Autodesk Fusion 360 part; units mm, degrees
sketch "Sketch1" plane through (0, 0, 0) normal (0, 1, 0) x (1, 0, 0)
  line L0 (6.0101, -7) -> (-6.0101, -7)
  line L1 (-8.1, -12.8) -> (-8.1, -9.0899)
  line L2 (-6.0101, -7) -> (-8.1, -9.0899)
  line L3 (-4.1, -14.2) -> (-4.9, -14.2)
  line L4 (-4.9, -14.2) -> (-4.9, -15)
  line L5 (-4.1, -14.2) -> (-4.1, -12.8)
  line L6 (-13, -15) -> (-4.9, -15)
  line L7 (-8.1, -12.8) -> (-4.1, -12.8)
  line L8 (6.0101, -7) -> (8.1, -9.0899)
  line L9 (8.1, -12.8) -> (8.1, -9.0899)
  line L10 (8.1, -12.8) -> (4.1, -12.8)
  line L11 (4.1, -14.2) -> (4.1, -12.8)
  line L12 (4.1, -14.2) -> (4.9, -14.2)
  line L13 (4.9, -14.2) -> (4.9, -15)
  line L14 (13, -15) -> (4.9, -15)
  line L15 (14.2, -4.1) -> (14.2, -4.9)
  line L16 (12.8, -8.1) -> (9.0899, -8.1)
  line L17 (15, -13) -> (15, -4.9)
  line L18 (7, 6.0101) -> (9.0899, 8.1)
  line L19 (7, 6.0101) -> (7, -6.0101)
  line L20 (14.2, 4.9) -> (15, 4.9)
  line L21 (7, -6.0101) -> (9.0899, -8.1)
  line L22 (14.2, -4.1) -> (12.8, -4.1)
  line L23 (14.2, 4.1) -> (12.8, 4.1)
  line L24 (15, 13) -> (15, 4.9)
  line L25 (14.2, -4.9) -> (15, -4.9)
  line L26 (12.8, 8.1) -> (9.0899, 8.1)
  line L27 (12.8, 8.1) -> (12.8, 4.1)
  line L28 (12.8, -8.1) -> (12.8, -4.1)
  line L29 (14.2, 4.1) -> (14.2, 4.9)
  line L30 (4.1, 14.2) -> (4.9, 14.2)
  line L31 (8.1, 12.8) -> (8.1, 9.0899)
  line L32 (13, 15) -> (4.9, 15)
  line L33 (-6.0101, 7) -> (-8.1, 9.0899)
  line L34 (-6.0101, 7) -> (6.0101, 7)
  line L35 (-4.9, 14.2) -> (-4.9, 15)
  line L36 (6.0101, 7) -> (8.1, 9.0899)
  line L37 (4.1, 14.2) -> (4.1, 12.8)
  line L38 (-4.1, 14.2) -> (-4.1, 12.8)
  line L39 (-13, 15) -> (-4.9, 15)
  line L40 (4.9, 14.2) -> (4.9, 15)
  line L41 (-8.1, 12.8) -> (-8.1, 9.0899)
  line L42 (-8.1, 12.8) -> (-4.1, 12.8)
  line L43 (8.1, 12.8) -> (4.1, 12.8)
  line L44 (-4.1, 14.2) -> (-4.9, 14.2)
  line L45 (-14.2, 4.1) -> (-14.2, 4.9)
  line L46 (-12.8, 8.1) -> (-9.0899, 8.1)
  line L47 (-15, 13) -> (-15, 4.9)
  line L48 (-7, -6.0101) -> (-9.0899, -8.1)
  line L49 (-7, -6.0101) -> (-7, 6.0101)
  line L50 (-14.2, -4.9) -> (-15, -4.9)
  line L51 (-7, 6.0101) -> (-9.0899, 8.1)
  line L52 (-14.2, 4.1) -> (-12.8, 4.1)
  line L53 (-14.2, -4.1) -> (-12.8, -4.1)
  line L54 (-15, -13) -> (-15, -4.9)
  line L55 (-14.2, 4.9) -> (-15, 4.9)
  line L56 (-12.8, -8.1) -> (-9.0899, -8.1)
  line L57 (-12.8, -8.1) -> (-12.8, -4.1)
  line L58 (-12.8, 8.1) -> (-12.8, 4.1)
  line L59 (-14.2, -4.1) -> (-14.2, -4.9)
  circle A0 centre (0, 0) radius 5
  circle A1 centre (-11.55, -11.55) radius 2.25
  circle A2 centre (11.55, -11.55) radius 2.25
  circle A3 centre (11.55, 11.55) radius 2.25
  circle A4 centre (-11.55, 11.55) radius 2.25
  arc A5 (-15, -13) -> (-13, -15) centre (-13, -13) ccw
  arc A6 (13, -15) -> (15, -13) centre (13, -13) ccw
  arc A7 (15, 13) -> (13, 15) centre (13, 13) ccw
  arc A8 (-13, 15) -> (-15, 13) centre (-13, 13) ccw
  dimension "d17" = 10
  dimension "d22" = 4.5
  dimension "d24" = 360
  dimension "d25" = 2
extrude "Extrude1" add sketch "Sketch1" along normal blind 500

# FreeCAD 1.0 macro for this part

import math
import FreeCAD as App
import Part
import Sketcher
from FreeCAD import Vector

doc = App.newDocument("Part")
body = doc.addObject("PartDesign::Body", "Body")

sketch1 = doc.addObject("Sketcher::SketchObject", "Sketch")
body.addObject(sketch1)
sketch1.AttachmentSupport = (doc.XZ_Plane, [""])
sketch1.MapMode = "FlatFace"
sketch1.addGeometry([
    Part.LineSegment(Vector(-6, 7, 0), Vector(6, 7, 0)),
    Part.LineSegment(Vector(6, 7, 0), Vector(8.1, 9.1, 0)),
    Part.LineSegment(Vector(8.1, 9.1, 0), Vector(8.1, 12.8, 0)),
    Part.LineSegment(Vector(8.1, 12.8, 0), Vector(4.1, 12.8, 0)),
    Part.LineSegment(Vector(4.1, 12.8, 0), Vector(4.1, 14.2, 0)),
    Part.LineSegment(Vector(4.1, 14.2, 0), Vector(4.9, 14.2, 0)),
    Part.LineSegment(Vector(4.9, 14.2, 0), Vector(4.9, 15, 0)),
    Part.LineSegment(Vector(4.9, 15, 0), Vector(13, 15, 0)),
    Part.ArcOfCircle(Part.Circle(Vector(13, 13, 0), Vector(0, 0, 1), 2), math.radians(0), math.radians(90)),
    Part.LineSegment(Vector(15, 13, 0), Vector(15, 4.9, 0)),
    Part.LineSegment(Vector(15, 4.9, 0), Vector(14.2, 4.9, 0)),
    Part.LineSegment(Vector(14.2, 4.9, 0), Vector(14.2, 4.1, 0)),
    Part.LineSegment(Vector(14.2, 4.1, 0), Vector(12.8, 4.1, 0)),
    Part.LineSegment(Vector(12.8, 4.1, 0), Vector(12.8, 8.1, 0)),
    Part.LineSegment(Vector(12.8, 8.1, 0), Vector(9.1, 8.1, 0)),
    Part.LineSegment(Vector(9.1, 8.1, 0), Vector(7, 6, 0)),
    Part.LineSegment(Vector(7, 6, 0), Vector(7, -6, 0)),
    Part.LineSegment(Vector(7, -6, 0), Vector(9.1, -8.1, 0)),
    Part.LineSegment(Vector(9.1, -8.1, 0), Vector(12.8, -8.1, 0)),
    Part.LineSegment(Vector(12.8, -8.1, 0), Vector(12.8, -4.1, 0)),
    Part.LineSegment(Vector(12.8, -4.1, 0), Vector(14.2, -4.1, 0)),
    Part.LineSegment(Vector(14.2, -4.1, 0), Vector(14.2, -4.9, 0)),
    Part.LineSegment(Vector(14.2, -4.9, 0), Vector(15, -4.9, 0)),
    Part.LineSegment(Vector(15, -4.9, 0), Vector(15, -13, 0)),
    Part.ArcOfCircle(Part.Circle(Vector(13, -13, 0), Vector(0, 0, 1), 2), math.radians(-90), math.radians(0)),
    Part.LineSegment(Vector(13, -15, 0), Vector(4.9, -15, 0)),
    Part.LineSegment(Vector(4.9, -15, 0), Vector(4.9, -14.2, 0)),
    Part.LineSegment(Vector(4.9, -14.2, 0), Vector(4.1, -14.2, 0)),
    Part.LineSegment(Vector(4.1, -14.2, 0), Vector(4.1, -12.8, 0)),
    Part.LineSegment(Vector(4.1, -12.8, 0), Vector(8.1, -12.8, 0)),
    Part.LineSegment(Vector(8.1, -12.8, 0), Vector(8.1, -9.1, 0)),
    Part.LineSegment(Vector(8.1, -9.1, 0), Vector(6, -7, 0)),
    Part.LineSegment(Vector(6, -7, 0), Vector(-6, -7, 0)),
    Part.LineSegment(Vector(-6, -7, 0), Vector(-8.1, -9.1, 0)),
    Part.LineSegment(Vector(-8.1, -9.1, 0), Vector(-8.1, -12.8, 0)),
    Part.LineSegment(Vector(-8.1, -12.8, 0), Vector(-4.1, -12.8, 0)),
    Part.LineSegment(Vector(-4.1, -12.8, 0), Vector(-4.1, -14.2, 0)),
    Part.LineSegment(Vector(-4.1, -14.2, 0), Vector(-4.9, -14.2, 0)),
    Part.LineSegment(Vector(-4.9, -14.2, 0), Vector(-4.9, -15, 0)),
    Part.LineSegment(Vector(-4.9, -15, 0), Vector(-13, -15, 0)),
    Part.ArcOfCircle(Part.Circle(Vector(-13, -13, 0), Vector(0, 0, 1), 2), math.radians(180), math.radians(270)),
    Part.LineSegment(Vector(-15, -13, 0), Vector(-15, -4.9, 0)),
    Part.LineSegment(Vector(-15, -4.9, 0), Vector(-14.2, -4.9, 0)),
    Part.LineSegment(Vector(-14.2, -4.9, 0), Vector(-14.2, -4.1, 0)),
    Part.LineSegment(Vector(-14.2, -4.1, 0), Vector(-12.8, -4.1, 0)),
    Part.LineSegment(Vector(-12.8, -4.1, 0), Vector(-12.8, -8.1, 0)),
    Part.LineSegment(Vector(-12.8, -8.1, 0), Vector(-9.1, -8.1, 0)),
    Part.LineSegment(Vector(-9.1, -8.1, 0), Vector(-7, -6, 0)),
    Part.LineSegment(Vector(-7, -6, 0), Vector(-7, 6, 0)),
    Part.LineSegment(Vector(-7, 6, 0), Vector(-9.1, 8.1, 0)),
    Part.LineSegment(Vector(-9.1, 8.1, 0), Vector(-12.8, 8.1, 0)),
    Part.LineSegment(Vector(-12.8, 8.1, 0), Vector(-12.8, 4.1, 0)),
    Part.LineSegment(Vector(-12.8, 4.1, 0), Vector(-14.2, 4.1, 0)),
    Part.LineSegment(Vector(-14.2, 4.1, 0), Vector(-14.2, 4.9, 0)),
    Part.LineSegment(Vector(-14.2, 4.9, 0), Vector(-15, 4.9, 0)),
    Part.LineSegment(Vector(-15, 4.9, 0), Vector(-15, 13, 0)),
    Part.ArcOfCircle(Part.Circle(Vector(-13, 13, 0), Vector(0, 0, 1), 2), math.radians(90), math.radians(180)),
    Part.LineSegment(Vector(-13, 15, 0), Vector(-4.9, 15, 0)),
    Part.LineSegment(Vector(-4.9, 15, 0), Vector(-4.9, 14.2, 0)),
    Part.LineSegment(Vector(-4.9, 14.2, 0), Vector(-4.1, 14.2, 0)),
    Part.LineSegment(Vector(-4.1, 14.2, 0), Vector(-4.1, 12.8, 0)),
    Part.LineSegment(Vector(-4.1, 12.8, 0), Vector(-8.1, 12.8, 0)),
    Part.LineSegment(Vector(-8.1, 12.8, 0), Vector(-8.1, 9.1, 0)),
    Part.LineSegment(Vector(-8.1, 9.1, 0), Vector(-6, 7, 0)),
    Part.Circle(Vector(-11.6, 11.6, 0), Vector(0, 0, 1), 2.2),
    Part.Circle(Vector(11.6, 11.6, 0), Vector(0, 0, 1), 2.2),
    Part.Circle(Vector(-11.6, -11.6, 0), Vector(0, 0, 1), 2.2),
    Part.Circle(Vector(0, 0, 0), Vector(0, 0, 1), 5),
    Part.Circle(Vector(11.6, -11.6, 0), Vector(0, 0, 1), 2.2),
], False)
sketch1.addConstraint([
    Sketcher.Constraint("Coincident", 0, 2, 1, 1),
    Sketcher.Constraint("Coincident", 1, 2, 2, 1),
    Sketcher.Constraint("Coincident", 2, 2, 3, 1),
    Sketcher.Constraint("Coincident", 3, 2, 4, 1),
    Sketcher.Constraint("Coincident", 4, 2, 5, 1),
    Sketcher.Constraint("Coincident", 5, 2, 6, 1),
    Sketcher.Constraint("Coincident", 6, 2, 7, 1),
    Sketcher.Constraint("Tangent", 7, 2, 8, 2),
    Sketcher.Constraint("Tangent", 8, 1, 9, 1),
    Sketcher.Constraint("Coincident", 9, 2, 10, 1),
    Sketcher.Constraint("Coincident", 10, 2, 11, 1),
    Sketcher.Constraint("Coincident", 11, 2, 12, 1),
    Sketcher.Constraint("Coincident", 12, 2, 13, 1),
    Sketcher.Constraint("Coincident", 13, 2, 14, 1),
    Sketcher.Constraint("Coincident", 14, 2, 15, 1),
    Sketcher.Constraint("Coincident", 15, 2, 16, 1),
    Sketcher.Constraint("Coincident", 16, 2, 17, 1),
    Sketcher.Constraint("Coincident", 17, 2, 18, 1),
    Sketcher.Constraint("Coincident", 18, 2, 19, 1),
    Sketcher.Constraint("Coincident", 19, 2, 20, 1),
    Sketcher.Constraint("Coincident", 20, 2, 21, 1),
    Sketcher.Constraint("Coincident", 21, 2, 22, 1),
    Sketcher.Constraint("Coincident", 22, 2, 23, 1),
    Sketcher.Constraint("Tangent", 23, 2, 24, 2),
    Sketcher.Constraint("Tangent", 24, 1, 25, 1),
    Sketcher.Constraint("Coincident", 25, 2, 26, 1),
    Sketcher.Constraint("Coincident", 26, 2, 27, 1),
    Sketcher.Constraint("Coincident", 27, 2, 28, 1),
    Sketcher.Constraint("Coincident", 28, 2, 29, 1),
    Sketcher.Constraint("Coincident", 29, 2, 30, 1),
    Sketcher.Constraint("Coincident", 30, 2, 31, 1),
    Sketcher.Constraint("Coincident", 31, 2, 32, 1),
    Sketcher.Constraint("Coincident", 32, 2, 33, 1),
    Sketcher.Constraint("Coincident", 33, 2, 34, 1),
    Sketcher.Constraint("Coincident", 34, 2, 35, 1),
    Sketcher.Constraint("Coincident", 35, 2, 36, 1),
    Sketcher.Constraint("Coincident", 36, 2, 37, 1),
    Sketcher.Constraint("Coincident", 37, 2, 38, 1),
    Sketcher.Constraint("Coincident", 38, 2, 39, 1),
    Sketcher.Constraint("Tangent", 39, 2, 40, 2),
    Sketcher.Constraint("Tangent", 40, 1, 41, 1),
    Sketcher.Constraint("Coincident", 41, 2, 42, 1),
    Sketcher.Constraint("Coincident", 42, 2, 43, 1),
    Sketcher.Constraint("Coincident", 43, 2, 44, 1),
    Sketcher.Constraint("Coincident", 44, 2, 45, 1),
    Sketcher.Constraint("Coincident", 45, 2, 46, 1),
    Sketcher.Constraint("Coincident", 46, 2, 47, 1),
    Sketcher.Constraint("Coincident", 47, 2, 48, 1),
    Sketcher.Constraint("Coincident", 48, 2, 49, 1),
    Sketcher.Constraint("Coincident", 49, 2, 50, 1),
    Sketcher.Constraint("Coincident", 50, 2, 51, 1),
    Sketcher.Constraint("Coincident", 51, 2, 52, 1),
    Sketcher.Constraint("Coincident", 52, 2, 53, 1),
    Sketcher.Constraint("Coincident", 53, 2, 54, 1),
    Sketcher.Constraint("Coincident", 54, 2, 55, 1),
    Sketcher.Constraint("Tangent", 55, 2, 56, 2),
    Sketcher.Constraint("Tangent", 56, 1, 57, 1),
    Sketcher.Constraint("Coincident", 57, 2, 58, 1),
    Sketcher.Constraint("Coincident", 58, 2, 59, 1),
    Sketcher.Constraint("Coincident", 59, 2, 60, 1),
    Sketcher.Constraint("Coincident", 60, 2, 61, 1),
    Sketcher.Constraint("Coincident", 61, 2, 62, 1),
    Sketcher.Constraint("Coincident", 62, 2, 63, 1),
    Sketcher.Constraint("Coincident", 63, 2, 0, 1),
    Sketcher.Constraint("Horizontal", 0),
    Sketcher.Constraint("Vertical", 2),
    Sketcher.Constraint("Horizontal", 3),
    Sketcher.Constraint("Vertical", 4),
    Sketcher.Constraint("Horizontal", 5),
    Sketcher.Constraint("Vertical", 6),
    Sketcher.Constraint("Horizontal", 7),
    Sketcher.Constraint("Vertical", 9),
    Sketcher.Constraint("Horizontal", 10),
    Sketcher.Constraint("Vertical", 11),
    Sketcher.Constraint("Horizontal", 12),
    Sketcher.Constraint("Vertical", 13),
    Sketcher.Constraint("Horizontal", 14),
    Sketcher.Constraint("Vertical", 16),
    Sketcher.Constraint("Horizontal", 18),
    Sketcher.Constraint("Vertical", 19),
    Sketcher.Constraint("Horizontal", 20),
    Sketcher.Constraint("Vertical", 21),
    Sketcher.Constraint("Horizontal", 22),
    Sketcher.Constraint("Vertical", 23),
    Sketcher.Constraint("Horizontal", 25),
    Sketcher.Constraint("Vertical", 26),
    Sketcher.Constraint("Horizontal", 27),
    Sketcher.Constraint("Vertical", 28),
    Sketcher.Constraint("Horizontal", 29),
    Sketcher.Constraint("Vertical", 30),
    Sketcher.Constraint("Horizontal", 32),
    Sketcher.Constraint("Vertical", 34),
    Sketcher.Constraint("Horizontal", 35),
    Sketcher.Constraint("Vertical", 36),
    Sketcher.Constraint("Horizontal", 37),
    Sketcher.Constraint("Vertical", 38),
    Sketcher.Constraint("Horizontal", 39),
    Sketcher.Constraint("Vertical", 41),
    Sketcher.Constraint("Horizontal", 42),
    Sketcher.Constraint("Vertical", 43),
    Sketcher.Constraint("Horizontal", 44),
    Sketcher.Constraint("Vertical", 45),
    Sketcher.Constraint("Horizontal", 46),
    Sketcher.Constraint("Vertical", 48),
    Sketcher.Constraint("Horizontal", 50),
    Sketcher.Constraint("Vertical", 51),
    Sketcher.Constraint("Horizontal", 52),
    Sketcher.Constraint("Vertical", 53),
    Sketcher.Constraint("Horizontal", 54),
    Sketcher.Constraint("Vertical", 55),
    Sketcher.Constraint("Horizontal", 57),
    Sketcher.Constraint("Vertical", 58),
    Sketcher.Constraint("Horizontal", 59),
    Sketcher.Constraint("Vertical", 60),
    Sketcher.Constraint("Horizontal", 61),
    Sketcher.Constraint("Vertical", 62),
    Sketcher.Constraint("Coincident", 67, 3, -1, 1),
    Sketcher.Constraint("Equal", 8, 24),
    Sketcher.Constraint("Equal", 24, 40),
    Sketcher.Constraint("Equal", 40, 56),
    Sketcher.Constraint("Equal", 64, 65),
    Sketcher.Constraint("Equal", 65, 66),
    Sketcher.Constraint("Equal", 66, 68),
    Sketcher.Constraint("Symmetric", 8, 3, 40, 3, -1, 1),
    Sketcher.Constraint("Symmetric", 24, 3, 56, 3, -1, 1),
    Sketcher.Constraint("Symmetric", 65, 3, 66, 3, -1, 1),
    Sketcher.Constraint("Symmetric", 64, 3, 68, 3, -1, 1),
    Sketcher.Constraint("Symmetric", 0, 2, 32, 2, -1, 1),
    Sketcher.Constraint("Symmetric", 1, 2, 33, 2, -1, 1),
    Sketcher.Constraint("Symmetric", 3, 2, 35, 2, -1, 1),
    Sketcher.Constraint("Symmetric", 5, 2, 37, 2, -1, 1),
    Sketcher.Constraint("Symmetric", 10, 2, 42, 2, -1, 1),
    Sketcher.Constraint("Symmetric", 12, 2, 44, 2, -1, 1),
    Sketcher.Constraint("Symmetric", 14, 2, 46, 2, -1, 1),
    Sketcher.Constraint("Symmetric", 15, 2, 47, 2, -1, 1),
    Sketcher.Constraint("Symmetric", 17, 2, 49, 2, -1, 1),
    Sketcher.Constraint("Symmetric", 19, 2, 51, 2, -1, 1),
    Sketcher.Constraint("Symmetric", 21, 2, 53, 2, -1, 1),
    Sketcher.Constraint("Symmetric", 26, 2, 58, 2, -1, 1),
    Sketcher.Constraint("Symmetric", 28, 2, 60, 2, -1, 1),
    Sketcher.Constraint("Symmetric", 30, 2, 62, 2, -1, 1),
    Sketcher.Constraint("Symmetric", 24, 3, 40, 3, -2),
    Sketcher.Constraint("Symmetric", 64, 3, 65, 3, -2),
    Sketcher.Constraint("Symmetric", 30, 2, 33, 2, -2),
    Sketcher.Constraint("Symmetric", 28, 2, 35, 2, -2),
    Sketcher.Constraint("Symmetric", 26, 2, 37, 2, -2),
    Sketcher.Constraint("Symmetric", 21, 2, 42, 2, -2),
    Sketcher.Constraint("Symmetric", 19, 2, 44, 2, -2),
    Sketcher.Constraint("Symmetric", 17, 2, 46, 2, -2),
    Sketcher.Constraint("Parallel", 1, 15),
    Sketcher.Constraint("Perpendicular", 15, 17),
    Sketcher.Constraint("Parallel", 17, 31),
    Sketcher.Constraint("Perpendicular", 47, 49),
    Sketcher.Constraint("Parallel", 49, 63),
    Sketcher.Constraint("Horizontal", 16, 2, 47, 2),
    Sketcher.Constraint("Equal", 5, 10),
    Sketcher.Constraint("Equal", 50, 2),
    Sketcher.Constraint("Equal", 52, 4),
    Sketcher.Constraint("Equal", 59, 6),
    Sketcher.Constraint("Equal", 57, 9),
    Sketcher.Constraint("Equal", 6, 11),
    Sketcher.Constraint("Equal", 61, 13),
    Sketcher.Constraint("Equal", 32, 16),
    Sketcher.Constraint("Equal", 1, 15),
    Sketcher.Constraint("Diameter", 67, 10.0),
    Sketcher.Constraint("Radius", 8, 2.0),
    Sketcher.Constraint("Diameter", 64, 4.5),
    Sketcher.Constraint("DistanceX", 3, 2, 3, 1, 4.0),
    Sketcher.Constraint("DistanceX", 5, 1, 5, 2, 0.8),
    Sketcher.Constraint("DistanceX", 7, 1, 7, 2, 8.1),
    Sketcher.Constraint("DistanceX", 12, 2, 12, 1, 1.4),
    Sketcher.Constraint("DistanceX", -1, 1, 8, 3, 13.0),
    Sketcher.Constraint("DistanceY", -1, 1, 0, 2, 7.0),
    Sketcher.Constraint("DistanceX", 14, 2, 14, 1, 3.71),
    Sketcher.Constraint("DistanceX", 64, 3, -1, 1, 11.55),
    Sketcher.Constraint("DistanceY", -1, 1, 64, 3, 11.55),
])
pad1 = doc.addObject("PartDesign::Pad", "Pad")
body.addObject(pad1)
pad1.Profile = sketch1
pad1.Length = 500
pad1.Reversed = True

doc.recompute()
